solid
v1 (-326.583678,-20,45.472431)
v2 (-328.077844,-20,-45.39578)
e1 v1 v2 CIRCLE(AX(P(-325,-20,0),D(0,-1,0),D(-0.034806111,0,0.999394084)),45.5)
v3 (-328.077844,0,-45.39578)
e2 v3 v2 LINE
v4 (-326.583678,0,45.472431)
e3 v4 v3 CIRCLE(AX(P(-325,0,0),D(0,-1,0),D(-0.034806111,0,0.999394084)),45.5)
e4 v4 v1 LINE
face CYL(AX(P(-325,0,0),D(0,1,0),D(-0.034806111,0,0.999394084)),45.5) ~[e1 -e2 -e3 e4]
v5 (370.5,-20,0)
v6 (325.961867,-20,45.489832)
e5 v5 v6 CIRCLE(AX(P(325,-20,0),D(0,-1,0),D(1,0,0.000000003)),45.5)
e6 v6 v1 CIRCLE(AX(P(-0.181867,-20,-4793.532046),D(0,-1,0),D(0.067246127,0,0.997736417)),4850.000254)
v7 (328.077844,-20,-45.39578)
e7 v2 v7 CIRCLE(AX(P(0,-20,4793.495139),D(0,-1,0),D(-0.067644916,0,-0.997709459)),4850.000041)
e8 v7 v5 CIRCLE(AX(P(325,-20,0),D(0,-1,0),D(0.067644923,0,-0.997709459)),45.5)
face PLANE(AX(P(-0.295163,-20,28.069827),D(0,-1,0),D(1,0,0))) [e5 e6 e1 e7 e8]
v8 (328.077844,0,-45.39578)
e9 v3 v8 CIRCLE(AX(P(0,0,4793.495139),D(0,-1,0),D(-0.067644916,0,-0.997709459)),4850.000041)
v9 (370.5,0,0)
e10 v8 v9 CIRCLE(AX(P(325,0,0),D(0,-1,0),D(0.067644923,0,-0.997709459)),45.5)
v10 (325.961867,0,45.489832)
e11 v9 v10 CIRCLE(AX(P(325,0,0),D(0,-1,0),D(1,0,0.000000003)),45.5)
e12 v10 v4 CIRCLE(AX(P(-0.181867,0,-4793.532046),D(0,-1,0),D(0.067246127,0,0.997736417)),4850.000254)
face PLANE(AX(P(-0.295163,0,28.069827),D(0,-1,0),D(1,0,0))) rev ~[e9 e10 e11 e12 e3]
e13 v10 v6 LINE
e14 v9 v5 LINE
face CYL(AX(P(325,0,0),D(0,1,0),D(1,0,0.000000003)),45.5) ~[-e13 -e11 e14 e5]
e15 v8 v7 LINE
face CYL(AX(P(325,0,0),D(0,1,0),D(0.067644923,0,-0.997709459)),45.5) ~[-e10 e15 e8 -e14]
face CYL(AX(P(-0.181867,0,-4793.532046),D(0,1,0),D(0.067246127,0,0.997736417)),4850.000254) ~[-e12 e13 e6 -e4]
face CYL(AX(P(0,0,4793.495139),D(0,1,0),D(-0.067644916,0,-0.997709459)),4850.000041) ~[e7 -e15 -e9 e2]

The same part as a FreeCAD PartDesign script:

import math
import FreeCAD as App
import Part
import Sketcher
from FreeCAD import Vector
Q = App.Units.Quantity

doc = App.newDocument("Part")
body = doc.addObject("PartDesign::Body", "Body")

sketch1 = doc.addObject("Sketcher::SketchObject", "Sketch")
body.addObject(sketch1)
sketch1.AttachmentSupport = (doc.XZ_Plane, [""])
sketch1.MapMode = "FlatFace"
sketch1.addGeometry([
    Part.ArcOfCircle(Part.Circle(Vector(0, 4793, 0), Vector(0, 0, 1), 4850), math.radians(-93.88), math.radians(-86.12)),
    Part.ArcOfCircle(Part.Circle(Vector(325, 0, 0), Vector(0, 0, 1), 45), math.radians(-86), math.radians(0)),
    Part.ArcOfCircle(Part.Circle(Vector(325, 0, 0), Vector(0, 0, 1), 46), math.radians(0), math.radians(89)),
    Part.ArcOfCircle(Part.Circle(Vector(0, -4794, 0), Vector(0, 0, 1), 4850), math.radians(86.14), math.radians(93.86)),
    Part.ArcOfCircle(Part.Circle(Vector(-325, 0, 0), Vector(0, 0, 1), 45), math.radians(92), math.radians(266)),
], False)
sketch1.addConstraint([
    Sketcher.Constraint("Tangent", 0, 2, 1, 1),
    Sketcher.Constraint("Tangent", 1, 2, 2, 1),
    Sketcher.Constraint("Coincident", 2, 2, 3, 1),
    Sketcher.Constraint("Coincident", 3, 2, 4, 1),
    Sketcher.Constraint("Tangent", 4, 2, 0, 1),
    Sketcher.Constraint("Equal", 1, 2),
    Sketcher.Constraint("Equal", 2, 4),
    Sketcher.Constraint("Symmetric", 1, 3, 4, 3, -1, 1),
    Sketcher.Constraint("PointOnObject", 0, 3, -2),
    Sketcher.Constraint("PointOnObject", 1, 2, -1),
    Sketcher.Constraint("Radius", 1, Q("45.5 mm")),
    Sketcher.Constraint("DistanceX", -1, 1, 1, 3, Q("325 mm")),
    Sketcher.Constraint("Radius", 0, Q("4850.000041 mm")),
    Sketcher.Constraint("Radius", 3, Q("4850.000254 mm")),
    Sketcher.Constraint("DistanceY", -1, 1, 2, 2, Q("45.489832 mm")),
    Sketcher.Constraint("DistanceX", 3, 3, -1, 1, Q("0.181867 mm")),
])
pad1 = doc.addObject("PartDesign::Pad", "Pad")
body.addObject(pad1)
pad1.Profile = sketch1
pad1.Length = 20

doc.recompute()
